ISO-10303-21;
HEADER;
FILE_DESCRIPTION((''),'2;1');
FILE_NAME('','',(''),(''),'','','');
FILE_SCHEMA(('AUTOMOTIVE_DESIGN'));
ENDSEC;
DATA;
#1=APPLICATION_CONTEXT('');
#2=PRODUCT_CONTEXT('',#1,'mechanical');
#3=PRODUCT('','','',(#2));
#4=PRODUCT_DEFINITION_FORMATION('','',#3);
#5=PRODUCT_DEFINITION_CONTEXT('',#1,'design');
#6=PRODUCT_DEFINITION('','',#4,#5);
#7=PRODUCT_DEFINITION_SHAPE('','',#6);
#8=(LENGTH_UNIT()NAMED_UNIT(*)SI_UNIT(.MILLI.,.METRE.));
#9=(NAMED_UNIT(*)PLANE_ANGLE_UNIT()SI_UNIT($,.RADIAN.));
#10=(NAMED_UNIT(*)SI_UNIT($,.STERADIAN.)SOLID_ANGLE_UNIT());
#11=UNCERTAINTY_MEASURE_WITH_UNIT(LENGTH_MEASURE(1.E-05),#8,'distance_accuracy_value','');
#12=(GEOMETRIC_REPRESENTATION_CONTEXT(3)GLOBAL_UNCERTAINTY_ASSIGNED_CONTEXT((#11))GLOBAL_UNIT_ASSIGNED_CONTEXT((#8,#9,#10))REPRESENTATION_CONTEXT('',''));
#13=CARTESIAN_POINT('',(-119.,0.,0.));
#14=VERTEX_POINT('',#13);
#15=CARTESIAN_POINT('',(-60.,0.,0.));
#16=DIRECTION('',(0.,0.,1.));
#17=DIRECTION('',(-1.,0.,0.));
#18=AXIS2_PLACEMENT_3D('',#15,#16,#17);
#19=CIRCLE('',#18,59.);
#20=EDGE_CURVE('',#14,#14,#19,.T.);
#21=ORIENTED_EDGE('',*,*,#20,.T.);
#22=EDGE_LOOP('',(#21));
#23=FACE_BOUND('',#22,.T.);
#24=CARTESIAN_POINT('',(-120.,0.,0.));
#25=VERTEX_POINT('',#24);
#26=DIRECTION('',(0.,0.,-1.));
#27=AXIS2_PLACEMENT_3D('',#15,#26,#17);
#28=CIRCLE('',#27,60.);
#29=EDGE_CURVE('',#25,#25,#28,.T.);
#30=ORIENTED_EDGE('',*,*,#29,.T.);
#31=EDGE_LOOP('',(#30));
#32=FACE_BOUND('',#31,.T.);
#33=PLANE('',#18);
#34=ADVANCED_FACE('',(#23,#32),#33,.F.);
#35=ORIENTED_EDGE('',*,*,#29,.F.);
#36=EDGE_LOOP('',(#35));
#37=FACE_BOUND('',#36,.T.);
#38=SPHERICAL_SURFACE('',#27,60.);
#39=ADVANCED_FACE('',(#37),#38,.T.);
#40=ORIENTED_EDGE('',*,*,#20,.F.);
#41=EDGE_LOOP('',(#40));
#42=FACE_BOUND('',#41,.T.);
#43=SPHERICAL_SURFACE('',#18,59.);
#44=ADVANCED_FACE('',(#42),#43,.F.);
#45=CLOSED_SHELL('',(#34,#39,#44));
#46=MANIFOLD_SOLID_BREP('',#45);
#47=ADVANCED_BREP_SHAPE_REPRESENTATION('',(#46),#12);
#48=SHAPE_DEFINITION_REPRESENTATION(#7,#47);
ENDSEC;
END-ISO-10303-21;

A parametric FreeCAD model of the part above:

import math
import FreeCAD as App
import Part
import Sketcher
from FreeCAD import Vector

doc = App.newDocument("Part")
params = doc.addObject("Spreadsheet::Sheet", "Params")
for row, (alias, value) in enumerate([
    ("sketch1_radius", "59 mm"),
    ("sketch1_radius2", "60 mm"),
    ("revolution_angle", "180 deg"),
], start=1):
    params.set(f"A{row}", alias)
    params.set(f"B{row}", "=" + value)
    params.setAlias(f"B{row}", alias)

body = doc.addObject("PartDesign::Body", "Body")

sketch1 = body.newObject("Sketcher::SketchObject", "Sketch")
sketch1.AttachmentSupport = (doc.getObject("XY_Plane"), [""])
sketch1.MapMode = "FlatFace"
sketch1.addGeometry(Part.LineSegment(Vector(-120, 0, 0), Vector(-119, 0, 0)), False)
sketch1.addGeometry(Part.ArcOfCircle(Part.Circle(Vector(-60, 0, 0), Vector(0, 0, 1), 59), math.radians(0), math.radians(180)), False)
sketch1.addGeometry(Part.LineSegment(Vector(-1, 0, 0), Vector(0, 0, 0)), False)
sketch1.addGeometry(Part.ArcOfCircle(Part.Circle(Vector(-60, 0, 0), Vector(0, 0, 1), 60), math.radians(0), math.radians(180)), False)
sketch1.addConstraint(Sketcher.Constraint("Coincident", 0, 2, 1, 2))
sketch1.addConstraint(Sketcher.Constraint("Coincident", 1, 1, 2, 1))
sketch1.addConstraint(Sketcher.Constraint("Coincident", 2, 2, 3, 1))
sketch1.addConstraint(Sketcher.Constraint("Coincident", 3, 2, 0, 1))
sketch1.addConstraint(Sketcher.Constraint("Horizontal", 0))
sketch1.addConstraint(Sketcher.Constraint("Horizontal", 2))
sketch1.addConstraint(Sketcher.Constraint("Coincident", 2, 2, -1, 1))
sketch1.addConstraint(Sketcher.Constraint("Coincident", 3, 3, 1, 3))
sketch1.addConstraint(Sketcher.Constraint("PointOnObject", 1, 3, -1))
sketch1.addConstraint(Sketcher.Constraint("PointOnObject", 0, 2, -1))
sketch1.addConstraint(Sketcher.Constraint("Radius", 1, 59.0))
sketch1.addConstraint(Sketcher.Constraint("Radius", 3, 60.0))
sketch1.setExpression("Constraints[10]", "Params.sketch1_radius")
sketch1.setExpression("Constraints[11]", "Params.sketch1_radius2")
revolution = body.newObject("PartDesign::Revolution", "Revolution")
revolution.Profile = sketch1
revolution.ReferenceAxis = (sketch1, ["H_Axis"])
revolution.setExpression("Angle", "Params.revolution_angle")

doc.recompute()
